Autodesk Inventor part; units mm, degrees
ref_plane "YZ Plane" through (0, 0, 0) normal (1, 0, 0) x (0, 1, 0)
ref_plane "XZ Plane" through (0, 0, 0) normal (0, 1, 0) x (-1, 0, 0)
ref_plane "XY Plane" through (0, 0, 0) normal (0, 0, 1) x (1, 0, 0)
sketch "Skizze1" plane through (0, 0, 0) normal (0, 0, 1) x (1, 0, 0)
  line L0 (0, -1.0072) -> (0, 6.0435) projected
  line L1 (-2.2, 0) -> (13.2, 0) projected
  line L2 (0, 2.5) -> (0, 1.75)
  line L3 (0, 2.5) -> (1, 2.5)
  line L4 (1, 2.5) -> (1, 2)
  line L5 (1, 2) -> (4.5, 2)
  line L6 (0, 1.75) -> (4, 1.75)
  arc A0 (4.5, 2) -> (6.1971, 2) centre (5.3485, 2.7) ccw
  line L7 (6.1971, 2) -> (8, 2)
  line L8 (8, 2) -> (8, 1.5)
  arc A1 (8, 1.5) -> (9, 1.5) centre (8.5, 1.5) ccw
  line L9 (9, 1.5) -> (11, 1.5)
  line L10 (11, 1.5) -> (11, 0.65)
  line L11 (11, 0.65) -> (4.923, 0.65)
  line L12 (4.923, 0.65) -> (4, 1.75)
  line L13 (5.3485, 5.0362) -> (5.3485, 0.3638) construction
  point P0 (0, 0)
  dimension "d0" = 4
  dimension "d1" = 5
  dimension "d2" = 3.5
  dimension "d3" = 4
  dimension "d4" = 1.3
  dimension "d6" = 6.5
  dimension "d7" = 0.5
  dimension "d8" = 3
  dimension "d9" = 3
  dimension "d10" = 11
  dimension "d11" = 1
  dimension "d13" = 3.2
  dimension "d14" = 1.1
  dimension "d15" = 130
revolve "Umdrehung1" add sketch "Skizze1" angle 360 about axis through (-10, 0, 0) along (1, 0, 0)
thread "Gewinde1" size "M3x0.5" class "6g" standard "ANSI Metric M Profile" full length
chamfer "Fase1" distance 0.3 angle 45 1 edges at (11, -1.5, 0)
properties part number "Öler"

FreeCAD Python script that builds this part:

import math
import FreeCAD as App
import Part
import Sketcher

V = App.Vector
Q = App.Units.Quantity


def edges_at(feature, points):
    """Names of the edges that pass closest to the given points."""
    edges = feature.Shape.Edges
    near = lambda p: min(range(len(edges)), key=lambda i: edges[i].distToShape(Part.Vertex(*p))[0])
    return sorted({f"Edge{near(p) + 1}" for p in points})

doc = App.newDocument("Part")
body = doc.addObject("PartDesign::Body", "Body")

sketch1 = body.newObject("Sketcher::SketchObject", "Sketch")
sketch1.AttachmentSupport = (doc.getObject("XY_Plane"), [""])
sketch1.MapMode = "FlatFace"
sketch1.addGeometry([
    Part.LineSegment(V(0, 2.5, 0), V(0, 1.8, 0)),
    Part.LineSegment(V(0, 1.8, 0), V(4, 1.8, 0)),
    Part.LineSegment(V(4, 1.8, 0), V(4.9, 0.7, 0)),
    Part.LineSegment(V(4.9, 0.7, 0), V(11, 0.7, 0)),
    Part.LineSegment(V(11, 0.7, 0), V(11, 1.5, 0)),
    Part.LineSegment(V(11, 1.5, 0), V(9, 1.5, 0)),
    Part.ArcOfCircle(Part.Circle(V(8.5, 1.5, 0), V(0, 0, 1), 0.5), math.radians(180), math.radians(360)),
    Part.LineSegment(V(8, 1.5, 0), V(8, 2, 0)),
    Part.LineSegment(V(8, 2, 0), V(6.2, 2, 0)),
    Part.ArcOfCircle(Part.Circle(V(5.3, 2.7, 0), V(0, 0, 1), 1.1), math.radians(-140), math.radians(-40)),
    Part.LineSegment(V(4.5, 2, 0), V(1, 2, 0)),
    Part.LineSegment(V(1, 2, 0), V(1, 2.5, 0)),
    Part.LineSegment(V(1, 2.5, 0), V(0, 2.5, 0)),
], False)
sketch1.addConstraint([
    Sketcher.Constraint("Coincident", 0, 2, 1, 1),
    Sketcher.Constraint("Coincident", 1, 2, 2, 1),
    Sketcher.Constraint("Coincident", 2, 2, 3, 1),
    Sketcher.Constraint("Coincident", 3, 2, 4, 1),
    Sketcher.Constraint("Coincident", 4, 2, 5, 1),
    Sketcher.Constraint("Coincident", 5, 2, 6, 2),
    Sketcher.Constraint("Tangent", 6, 1, 7, 1),
    Sketcher.Constraint("Coincident", 7, 2, 8, 1),
    Sketcher.Constraint("Coincident", 8, 2, 9, 2),
    Sketcher.Constraint("Coincident", 9, 1, 10, 1),
    Sketcher.Constraint("Coincident", 10, 2, 11, 1),
    Sketcher.Constraint("Coincident", 11, 2, 12, 1),
    Sketcher.Constraint("Coincident", 12, 2, 0, 1),
    Sketcher.Constraint("Vertical", 0),
    Sketcher.Constraint("Horizontal", 1),
    Sketcher.Constraint("Horizontal", 3),
    Sketcher.Constraint("Vertical", 4),
    Sketcher.Constraint("Horizontal", 5),
    Sketcher.Constraint("Vertical", 7),
    Sketcher.Constraint("Horizontal", 8),
    Sketcher.Constraint("Horizontal", 10),
    Sketcher.Constraint("Vertical", 11),
    Sketcher.Constraint("Horizontal", 12),
    Sketcher.Constraint("PointOnObject", 0, 2, -2),
    Sketcher.Constraint("Horizontal", 6, 3, 4, 2),
    Sketcher.Constraint("Horizontal", 8, 2, 9, 1),
    Sketcher.Constraint("Equal", 7, 11),
    Sketcher.Constraint("Radius", 6, Q("0.5 mm")),
    Sketcher.Constraint("Radius", 9, Q("1.1 mm")),
    Sketcher.Constraint("DistanceX", 1, 1, 1, 2, Q("4 mm")),
    Sketcher.Constraint("DistanceX", 12, 2, 12, 1, Q("1 mm")),
    Sketcher.Constraint("DistanceX", 10, 2, 10, 1, Q("3.5 mm")),
    Sketcher.Constraint("DistanceY", 7, 1, 7, 2, Q("0.5 mm")),
    Sketcher.Constraint("DistanceX", -1, 1, 3, 2, Q("11 mm")),
    Sketcher.Constraint("DistanceX", 6, 1, 4, 2, Q("3 mm")),
    Sketcher.Constraint("DistanceY", 2, 2, 1, 2, Q("1.1 mm")),
    Sketcher.Constraint("Angle", 2, Q("-50.0003 deg")),
    Sketcher.Constraint("DistanceY", -1, 1, 7, 2, Q("2 mm")),
    Sketcher.Constraint("DistanceY", 0, 2, 0, 1, Q("0.75 mm")),
    Sketcher.Constraint("DistanceY", -1, 1, 9, 3, Q("2.7 mm")),
])
revolution = body.newObject("PartDesign::Revolution", "Revolution")
revolution.Profile = sketch1
revolution.ReferenceAxis = (sketch1, ["H_Axis"])
revolution.Angle = 360
doc.recompute()

chamfer = body.newObject("PartDesign::Chamfer", "Chamfer")
chamfer.Base = (revolution, edges_at(revolution, [(11, -1.5, 0)]))
chamfer.Size = 0.3

doc.recompute()
